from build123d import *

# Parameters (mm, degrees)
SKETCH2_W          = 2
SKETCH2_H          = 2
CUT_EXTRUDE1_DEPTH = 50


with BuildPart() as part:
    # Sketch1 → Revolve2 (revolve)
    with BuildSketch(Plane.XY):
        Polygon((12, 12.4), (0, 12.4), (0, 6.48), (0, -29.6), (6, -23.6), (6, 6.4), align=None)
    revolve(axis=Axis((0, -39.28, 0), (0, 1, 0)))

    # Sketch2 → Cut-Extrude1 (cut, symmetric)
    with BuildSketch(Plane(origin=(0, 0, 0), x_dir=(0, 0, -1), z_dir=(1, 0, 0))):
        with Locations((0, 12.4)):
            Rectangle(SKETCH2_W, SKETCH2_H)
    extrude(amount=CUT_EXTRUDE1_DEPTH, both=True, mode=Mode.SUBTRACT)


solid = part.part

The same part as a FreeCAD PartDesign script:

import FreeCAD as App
import Part
import Sketcher

V = App.Vector
Q = App.Units.Quantity


def add_polygon(sketch, points):
    """Adds a closed chain of lines whose ends are joined by coincident constraints."""
    first, n = sketch.GeometryCount, len(points)
    for a, b in zip(points, points[1:] + points[:1]):
        sketch.addGeometry(Part.LineSegment(App.Vector(*a, 0), App.Vector(*b, 0)), False)
    for i in range(n):
        sketch.addConstraint(Sketcher.Constraint("Coincident", first + i, 2, first + (i + 1) % n, 1))

doc = App.newDocument("Part")
body = doc.addObject("PartDesign::Body", "Body")

sketch1 = doc.addObject("Sketcher::SketchObject", "Sketch")
body.addObject(sketch1)
sketch1.AttachmentSupport = (doc.XY_Plane, [""])
sketch1.MapMode = "FlatFace"
add_polygon(sketch1, [(12, 12.4), (0, 12.4), (0, -29.6), (6, -23.6), (6, 6.4)])
sketch1.addConstraint([
    Sketcher.Constraint("Horizontal", 0),
    Sketcher.Constraint("Vertical", 1),
    Sketcher.Constraint("Vertical", 3),
    Sketcher.Constraint("PointOnObject", 0, 2, -2),
    Sketcher.Constraint("Parallel", 2, 4),
    Sketcher.Constraint("Equal", 2, 4),
    Sketcher.Constraint("DistanceX", 0, 2, 0, 1, Q("12 mm")),
    Sketcher.Constraint("DistanceY", 1, 2, 1, 1, Q("42 mm")),
    Sketcher.Constraint("DistanceY", 3, 1, 3, 2, Q("30 mm")),
    Sketcher.Constraint("DistanceY", -1, 1, 0, 2, Q("12.4 mm")),
])
revolution = doc.addObject("PartDesign::Revolution", "Revolution")
body.addObject(revolution)
revolution.Profile = sketch1
revolution.ReferenceAxis = (sketch1, ["V_Axis"])
revolution.Angle = 360

sketch2 = doc.addObject("Sketcher::SketchObject", "Sketch001")
body.addObject(sketch2)
sketch2.AttachmentSupport = (doc.YZ_Plane, [""])
sketch2.MapMode = "FlatFace"
add_polygon(sketch2, [(13.4, 1), (11.4, 1), (11.4, -1), (13.4, -1)])
sketch2.addConstraint([
    Sketcher.Constraint("Horizontal", 0),
    Sketcher.Constraint("Vertical", 1),
    Sketcher.Constraint("Horizontal", 2),
    Sketcher.Constraint("Vertical", 3),
    Sketcher.Constraint("Equal", 2, 1),
    Sketcher.Constraint("DistanceX", 0, 2, 0, 1, Q("2 mm")),
    Sketcher.Constraint("DistanceY", -1, 1, 0, 2, Q("1 mm")),
    Sketcher.Constraint("DistanceX", -1, 1, 0, 2, Q("11.4 mm")),
])
pocket1 = doc.addObject("PartDesign::Pocket", "Pocket")
body.addObject(pocket1)
pocket1.Profile = sketch2
pocket1.Length = 100
pocket1.Midplane = True

doc.recompute()
